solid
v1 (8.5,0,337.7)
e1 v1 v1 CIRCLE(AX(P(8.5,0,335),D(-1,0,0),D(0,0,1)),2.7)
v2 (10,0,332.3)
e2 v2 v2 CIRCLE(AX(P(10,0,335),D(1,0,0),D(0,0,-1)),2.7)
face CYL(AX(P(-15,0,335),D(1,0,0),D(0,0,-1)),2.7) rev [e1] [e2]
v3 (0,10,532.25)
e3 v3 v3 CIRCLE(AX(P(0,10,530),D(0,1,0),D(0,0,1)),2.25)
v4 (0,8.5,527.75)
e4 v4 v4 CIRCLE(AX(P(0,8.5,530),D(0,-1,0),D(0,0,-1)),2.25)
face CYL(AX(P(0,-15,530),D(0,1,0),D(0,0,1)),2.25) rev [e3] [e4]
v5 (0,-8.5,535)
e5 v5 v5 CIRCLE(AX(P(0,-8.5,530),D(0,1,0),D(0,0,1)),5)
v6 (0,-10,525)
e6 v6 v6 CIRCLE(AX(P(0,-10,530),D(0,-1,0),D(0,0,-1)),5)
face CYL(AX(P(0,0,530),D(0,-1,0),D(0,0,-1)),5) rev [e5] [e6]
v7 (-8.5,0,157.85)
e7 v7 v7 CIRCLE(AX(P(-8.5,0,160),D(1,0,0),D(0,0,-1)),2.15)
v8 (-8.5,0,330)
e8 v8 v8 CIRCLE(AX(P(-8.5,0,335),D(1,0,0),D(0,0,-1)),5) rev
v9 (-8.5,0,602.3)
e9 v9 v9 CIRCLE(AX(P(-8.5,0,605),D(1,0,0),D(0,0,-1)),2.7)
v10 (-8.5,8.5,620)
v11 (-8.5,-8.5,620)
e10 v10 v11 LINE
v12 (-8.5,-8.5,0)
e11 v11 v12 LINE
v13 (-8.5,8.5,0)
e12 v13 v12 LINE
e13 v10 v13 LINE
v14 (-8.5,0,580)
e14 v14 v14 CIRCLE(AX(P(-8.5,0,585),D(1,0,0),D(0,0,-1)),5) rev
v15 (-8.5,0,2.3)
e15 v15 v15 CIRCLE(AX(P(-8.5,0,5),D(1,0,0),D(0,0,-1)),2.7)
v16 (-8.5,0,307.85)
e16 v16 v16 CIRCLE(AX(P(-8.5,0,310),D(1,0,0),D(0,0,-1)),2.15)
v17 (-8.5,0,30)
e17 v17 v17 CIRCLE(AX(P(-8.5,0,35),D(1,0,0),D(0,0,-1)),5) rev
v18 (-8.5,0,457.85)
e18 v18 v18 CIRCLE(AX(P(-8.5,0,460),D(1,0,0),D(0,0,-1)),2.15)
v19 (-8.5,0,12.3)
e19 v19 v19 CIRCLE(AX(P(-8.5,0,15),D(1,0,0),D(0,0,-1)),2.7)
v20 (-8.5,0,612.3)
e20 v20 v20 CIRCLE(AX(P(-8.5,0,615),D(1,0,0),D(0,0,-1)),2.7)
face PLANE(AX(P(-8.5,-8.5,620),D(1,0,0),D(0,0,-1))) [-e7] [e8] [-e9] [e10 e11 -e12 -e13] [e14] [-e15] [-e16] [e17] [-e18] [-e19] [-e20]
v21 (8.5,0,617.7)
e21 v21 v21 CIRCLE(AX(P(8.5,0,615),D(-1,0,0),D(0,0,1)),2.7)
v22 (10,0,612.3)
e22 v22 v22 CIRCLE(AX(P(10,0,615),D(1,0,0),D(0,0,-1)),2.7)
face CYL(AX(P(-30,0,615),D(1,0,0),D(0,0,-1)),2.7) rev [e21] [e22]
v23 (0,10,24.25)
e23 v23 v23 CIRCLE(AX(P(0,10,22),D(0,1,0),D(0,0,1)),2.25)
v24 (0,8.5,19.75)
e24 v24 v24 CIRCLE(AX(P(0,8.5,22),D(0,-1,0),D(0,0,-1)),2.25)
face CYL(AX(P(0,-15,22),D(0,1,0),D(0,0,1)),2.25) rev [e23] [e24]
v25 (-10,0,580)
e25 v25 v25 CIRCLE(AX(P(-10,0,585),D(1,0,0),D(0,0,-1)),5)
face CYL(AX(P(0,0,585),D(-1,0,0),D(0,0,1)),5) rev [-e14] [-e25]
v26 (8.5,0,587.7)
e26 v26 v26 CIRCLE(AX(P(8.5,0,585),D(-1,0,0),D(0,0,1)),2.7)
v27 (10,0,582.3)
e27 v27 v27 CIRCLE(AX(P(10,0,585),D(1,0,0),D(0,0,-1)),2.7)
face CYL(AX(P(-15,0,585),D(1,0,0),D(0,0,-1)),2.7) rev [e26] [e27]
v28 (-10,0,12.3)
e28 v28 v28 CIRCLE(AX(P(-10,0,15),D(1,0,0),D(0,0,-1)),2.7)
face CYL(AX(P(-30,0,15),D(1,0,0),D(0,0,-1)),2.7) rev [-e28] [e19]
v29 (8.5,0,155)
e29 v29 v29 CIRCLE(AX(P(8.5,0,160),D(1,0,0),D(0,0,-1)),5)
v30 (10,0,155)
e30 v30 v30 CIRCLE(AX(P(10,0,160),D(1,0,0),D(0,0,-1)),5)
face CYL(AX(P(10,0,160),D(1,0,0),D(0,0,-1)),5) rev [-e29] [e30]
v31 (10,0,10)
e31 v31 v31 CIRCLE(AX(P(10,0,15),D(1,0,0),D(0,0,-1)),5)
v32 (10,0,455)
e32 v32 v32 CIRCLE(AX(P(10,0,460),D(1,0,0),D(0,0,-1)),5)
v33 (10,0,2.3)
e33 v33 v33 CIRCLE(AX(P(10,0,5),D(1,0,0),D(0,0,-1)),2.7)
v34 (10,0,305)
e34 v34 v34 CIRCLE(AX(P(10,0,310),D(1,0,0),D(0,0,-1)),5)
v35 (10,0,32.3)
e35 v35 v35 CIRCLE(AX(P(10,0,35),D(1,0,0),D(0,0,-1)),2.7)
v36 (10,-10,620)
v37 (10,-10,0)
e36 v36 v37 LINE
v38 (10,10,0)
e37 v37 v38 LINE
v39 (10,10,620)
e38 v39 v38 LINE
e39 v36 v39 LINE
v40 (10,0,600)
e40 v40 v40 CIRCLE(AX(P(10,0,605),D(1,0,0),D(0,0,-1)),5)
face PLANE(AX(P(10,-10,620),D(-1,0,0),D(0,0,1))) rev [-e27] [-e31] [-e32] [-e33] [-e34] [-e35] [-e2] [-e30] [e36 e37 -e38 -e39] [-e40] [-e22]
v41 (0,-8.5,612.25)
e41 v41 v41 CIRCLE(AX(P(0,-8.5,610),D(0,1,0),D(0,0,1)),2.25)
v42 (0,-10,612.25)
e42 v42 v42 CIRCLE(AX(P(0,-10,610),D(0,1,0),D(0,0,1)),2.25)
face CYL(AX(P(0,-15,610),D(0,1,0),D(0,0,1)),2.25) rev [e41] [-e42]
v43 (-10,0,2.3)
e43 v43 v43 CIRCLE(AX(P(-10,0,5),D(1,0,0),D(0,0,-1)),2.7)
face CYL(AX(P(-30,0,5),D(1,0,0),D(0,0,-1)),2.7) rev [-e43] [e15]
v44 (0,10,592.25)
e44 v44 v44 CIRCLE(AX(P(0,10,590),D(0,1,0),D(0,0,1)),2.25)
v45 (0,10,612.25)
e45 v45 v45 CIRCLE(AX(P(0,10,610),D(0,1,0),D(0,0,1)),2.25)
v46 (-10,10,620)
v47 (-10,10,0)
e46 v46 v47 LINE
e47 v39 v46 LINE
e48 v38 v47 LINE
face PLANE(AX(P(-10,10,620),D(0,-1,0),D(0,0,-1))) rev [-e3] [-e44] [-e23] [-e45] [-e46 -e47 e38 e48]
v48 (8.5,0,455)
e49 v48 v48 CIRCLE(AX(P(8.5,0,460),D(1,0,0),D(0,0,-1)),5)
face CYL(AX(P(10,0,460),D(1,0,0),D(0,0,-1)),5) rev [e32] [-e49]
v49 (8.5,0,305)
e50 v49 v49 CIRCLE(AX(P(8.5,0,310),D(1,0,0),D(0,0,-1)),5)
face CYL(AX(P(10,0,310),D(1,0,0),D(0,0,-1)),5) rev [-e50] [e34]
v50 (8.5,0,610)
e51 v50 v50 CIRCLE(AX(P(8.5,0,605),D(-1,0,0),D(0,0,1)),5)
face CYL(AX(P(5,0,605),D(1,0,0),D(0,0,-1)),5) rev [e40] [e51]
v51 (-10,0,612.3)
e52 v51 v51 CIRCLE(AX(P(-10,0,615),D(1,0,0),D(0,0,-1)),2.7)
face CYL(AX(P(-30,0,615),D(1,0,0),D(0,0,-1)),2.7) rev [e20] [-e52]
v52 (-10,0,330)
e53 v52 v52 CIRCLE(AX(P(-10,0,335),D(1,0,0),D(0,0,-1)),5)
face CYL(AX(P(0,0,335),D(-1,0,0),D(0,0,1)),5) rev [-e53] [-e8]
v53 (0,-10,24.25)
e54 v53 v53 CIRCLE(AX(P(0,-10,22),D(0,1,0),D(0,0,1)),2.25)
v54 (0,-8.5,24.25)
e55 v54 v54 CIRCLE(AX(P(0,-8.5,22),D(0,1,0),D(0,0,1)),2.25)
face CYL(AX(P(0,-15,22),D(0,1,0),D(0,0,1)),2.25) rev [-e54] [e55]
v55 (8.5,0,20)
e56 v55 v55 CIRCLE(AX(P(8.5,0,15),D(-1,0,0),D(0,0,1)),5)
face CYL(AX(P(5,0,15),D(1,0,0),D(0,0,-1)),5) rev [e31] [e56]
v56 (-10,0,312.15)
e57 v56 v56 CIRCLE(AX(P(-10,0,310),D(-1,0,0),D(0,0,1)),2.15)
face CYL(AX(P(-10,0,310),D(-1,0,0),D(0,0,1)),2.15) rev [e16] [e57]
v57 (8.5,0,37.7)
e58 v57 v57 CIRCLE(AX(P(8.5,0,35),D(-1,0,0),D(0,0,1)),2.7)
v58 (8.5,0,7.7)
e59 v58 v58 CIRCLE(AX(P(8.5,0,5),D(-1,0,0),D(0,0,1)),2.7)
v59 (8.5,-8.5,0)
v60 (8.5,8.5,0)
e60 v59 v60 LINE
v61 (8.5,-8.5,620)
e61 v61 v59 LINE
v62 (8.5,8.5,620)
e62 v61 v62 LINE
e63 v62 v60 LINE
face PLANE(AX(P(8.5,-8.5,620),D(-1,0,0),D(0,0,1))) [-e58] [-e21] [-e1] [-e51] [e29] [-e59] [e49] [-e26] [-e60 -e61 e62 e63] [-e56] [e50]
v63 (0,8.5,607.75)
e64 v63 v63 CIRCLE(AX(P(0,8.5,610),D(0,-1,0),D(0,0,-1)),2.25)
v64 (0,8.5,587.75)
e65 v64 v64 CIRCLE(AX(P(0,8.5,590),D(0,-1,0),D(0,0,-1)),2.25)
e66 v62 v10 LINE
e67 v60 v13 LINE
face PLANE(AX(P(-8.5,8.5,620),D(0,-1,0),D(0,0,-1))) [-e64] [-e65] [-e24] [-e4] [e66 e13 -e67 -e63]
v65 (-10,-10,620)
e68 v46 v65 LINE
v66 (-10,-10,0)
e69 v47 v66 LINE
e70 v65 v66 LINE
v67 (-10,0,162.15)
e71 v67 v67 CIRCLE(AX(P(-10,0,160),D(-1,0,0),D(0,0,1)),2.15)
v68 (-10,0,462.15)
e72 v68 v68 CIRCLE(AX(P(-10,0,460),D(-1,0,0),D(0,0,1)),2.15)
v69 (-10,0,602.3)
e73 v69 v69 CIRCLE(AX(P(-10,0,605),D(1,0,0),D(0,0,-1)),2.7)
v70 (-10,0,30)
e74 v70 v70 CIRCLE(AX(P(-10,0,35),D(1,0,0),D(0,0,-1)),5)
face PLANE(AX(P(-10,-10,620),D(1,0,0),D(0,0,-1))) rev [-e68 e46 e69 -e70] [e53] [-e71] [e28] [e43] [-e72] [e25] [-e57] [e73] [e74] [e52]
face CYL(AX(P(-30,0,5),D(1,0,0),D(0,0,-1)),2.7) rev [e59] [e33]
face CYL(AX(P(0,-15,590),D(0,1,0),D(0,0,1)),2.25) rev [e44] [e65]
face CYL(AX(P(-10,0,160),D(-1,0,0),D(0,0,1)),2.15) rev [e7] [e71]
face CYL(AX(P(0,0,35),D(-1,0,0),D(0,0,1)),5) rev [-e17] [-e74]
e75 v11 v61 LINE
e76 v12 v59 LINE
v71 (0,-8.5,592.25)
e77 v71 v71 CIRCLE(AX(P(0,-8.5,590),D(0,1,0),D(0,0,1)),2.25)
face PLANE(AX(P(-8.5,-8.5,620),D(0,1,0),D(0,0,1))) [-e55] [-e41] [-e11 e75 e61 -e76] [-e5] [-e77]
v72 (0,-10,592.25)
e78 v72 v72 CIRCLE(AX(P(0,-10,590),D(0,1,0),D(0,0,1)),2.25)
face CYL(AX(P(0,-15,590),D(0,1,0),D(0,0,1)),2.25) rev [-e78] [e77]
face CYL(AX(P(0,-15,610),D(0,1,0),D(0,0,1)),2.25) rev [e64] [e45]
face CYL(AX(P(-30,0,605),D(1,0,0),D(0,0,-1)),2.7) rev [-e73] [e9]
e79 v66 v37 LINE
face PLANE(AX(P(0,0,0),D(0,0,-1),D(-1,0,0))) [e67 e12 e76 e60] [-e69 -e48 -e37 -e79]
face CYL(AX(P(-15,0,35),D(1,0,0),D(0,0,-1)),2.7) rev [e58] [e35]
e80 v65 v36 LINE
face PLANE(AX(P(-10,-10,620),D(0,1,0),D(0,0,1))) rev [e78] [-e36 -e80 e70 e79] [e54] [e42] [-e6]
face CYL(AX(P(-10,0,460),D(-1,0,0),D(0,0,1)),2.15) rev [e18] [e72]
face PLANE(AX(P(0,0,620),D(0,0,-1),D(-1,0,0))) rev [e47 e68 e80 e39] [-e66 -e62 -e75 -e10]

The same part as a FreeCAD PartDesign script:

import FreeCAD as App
import Part
import Sketcher

V = App.Vector
Q = App.Units.Quantity


def add_polygon(sketch, points):
    """Adds a closed chain of lines whose ends are joined by coincident constraints."""
    first, n = sketch.GeometryCount, len(points)
    for a, b in zip(points, points[1:] + points[:1]):
        sketch.addGeometry(Part.LineSegment(App.Vector(*a, 0), App.Vector(*b, 0)), False)
    for i in range(n):
        sketch.addConstraint(Sketcher.Constraint("Coincident", first + i, 2, first + (i + 1) % n, 1))

doc = App.newDocument("Part")
body = doc.addObject("PartDesign::Body", "Body")

# Sketch on XY plane
sketch1 = body.newObject("Sketcher::SketchObject", "Sketch")
sketch1.AttachmentSupport = (doc.getObject("XY_Plane"), [""])
sketch1.MapMode = "FlatFace"
add_polygon(sketch1, [(-10, 10), (-10, -10), (10, -10), (10, 10)])  # lines 0-3
add_polygon(sketch1, [(8.5, -8.5), (-8.5, -8.5), (-8.5, 8.5), (8.5, 8.5)])  # lines 4-7
sketch1.addConstraint(Sketcher.Constraint("Vertical", 0))
sketch1.addConstraint(Sketcher.Constraint("Horizontal", 1))
sketch1.addConstraint(Sketcher.Constraint("Vertical", 2))
sketch1.addConstraint(Sketcher.Constraint("Horizontal", 3))
sketch1.addConstraint(Sketcher.Constraint("Horizontal", 4))
sketch1.addConstraint(Sketcher.Constraint("Vertical", 5))
sketch1.addConstraint(Sketcher.Constraint("Horizontal", 6))
sketch1.addConstraint(Sketcher.Constraint("Vertical", 7))
sketch1.addConstraint(Sketcher.Constraint("Symmetric", 0, 2, 2, 2, -1, 1))
sketch1.addConstraint(Sketcher.Constraint("Symmetric", 4, 2, 6, 2, -1, 1))
sketch1.addConstraint(Sketcher.Constraint("Equal", 3, 0))
sketch1.addConstraint(Sketcher.Constraint("Equal", 6, 5))
sketch1.addConstraint(Sketcher.Constraint("DistanceX", 1, 1, 1, 2, Q("20 mm")))
sketch1.addConstraint(Sketcher.Constraint("DistanceX", 4, 2, 4, 1, Q("17 mm")))
pad1 = body.newObject("PartDesign::Pad", "Pad")
pad1.Profile = sketch1
pad1.Length = 620

# Sketch on YZ plane
sketch2 = body.newObject("Sketcher::SketchObject", "Sketch001")
sketch2.AttachmentSupport = (doc.getObject("YZ_Plane"), [""])
sketch2.MapMode = "FlatFace"
sketch2.AttachmentOffset = App.Placement(V(0, 0, 10), App.Rotation())
sketch2.addGeometry(Part.Circle(V(0, 585, 0), V(0, 0, 1), 2.7), False)
sketch2.addGeometry(Part.Circle(V(0, 35, 0), V(0, 0, 1), 2.7), False)
sketch2.addGeometry(Part.Circle(V(0, 335, 0), V(0, 0, 1), 2.7), False)
sketch2.addConstraint(Sketcher.Constraint("Equal", 0, 1))
sketch2.addConstraint(Sketcher.Constraint("Equal", 1, 2))
sketch2.addConstraint(Sketcher.Constraint("PointOnObject", 0, 3, -2))
sketch2.addConstraint(Sketcher.Constraint("PointOnObject", 1, 3, -2))
sketch2.addConstraint(Sketcher.Constraint("PointOnObject", 2, 3, -2))
sketch2.addConstraint(Sketcher.Constraint("Diameter", 0, Q("5.4 mm")))
sketch2.addConstraint(Sketcher.Constraint("DistanceY", -1, 1, 0, 3, Q("585 mm")))
sketch2.addConstraint(Sketcher.Constraint("DistanceY", -1, 1, 1, 3, Q("35 mm")))
sketch2.addConstraint(Sketcher.Constraint("DistanceY", -1, 1, 2, 3, Q("335 mm")))
pocket1 = body.newObject("PartDesign::Pocket", "Pocket")
pocket1.Profile = sketch2
pocket1.Length = 25

# Sketch on XZ plane
sketch3 = body.newObject("Sketcher::SketchObject", "Sketch002")
sketch3.AttachmentSupport = (doc.getObject("XZ_Plane"), [""])
sketch3.MapMode = "FlatFace"
sketch3.AttachmentOffset = App.Placement(V(0, 0, -10), App.Rotation())
sketch3.addGeometry(Part.Circle(V(0, 22, 0), V(0, 0, 1), 2.25), False)
sketch3.addGeometry(Part.Circle(V(0, 610, 0), V(0, 0, 1), 2.25), False)
sketch3.addGeometry(Part.Circle(V(0, 530, 0), V(0, 0, 1), 2.25), False)
sketch3.addGeometry(Part.Circle(V(0, 590, 0), V(0, 0, 1), 2.25), False)
sketch3.addConstraint(Sketcher.Constraint("Equal", 0, 1))
sketch3.addConstraint(Sketcher.Constraint("Equal", 1, 2))
sketch3.addConstraint(Sketcher.Constraint("Equal", 2, 3))
sketch3.addConstraint(Sketcher.Constraint("PointOnObject", 0, 3, -2))
sketch3.addConstraint(Sketcher.Constraint("PointOnObject", 1, 3, -2))
sketch3.addConstraint(Sketcher.Constraint("PointOnObject", 2, 3, -2))
sketch3.addConstraint(Sketcher.Constraint("PointOnObject", 3, 3, -2))
sketch3.addConstraint(Sketcher.Constraint("Diameter", 0, Q("4.5 mm")))
sketch3.addConstraint(Sketcher.Constraint("DistanceY", -1, 1, 0, 3, Q("22 mm")))
sketch3.addConstraint(Sketcher.Constraint("DistanceY", -1, 1, 1, 3, Q("610 mm")))
sketch3.addConstraint(Sketcher.Constraint("DistanceY", -1, 1, 2, 3, Q("530 mm")))
sketch3.addConstraint(Sketcher.Constraint("DistanceY", -1, 1, 3, 3, Q("590 mm")))
pocket2 = body.newObject("PartDesign::Pocket", "Pocket001")
pocket2.Profile = sketch3
pocket2.Length = 25
pocket2.Reversed = True

# Sketch on YZ plane
sketch4 = body.newObject("Sketcher::SketchObject", "Sketch003")
sketch4.AttachmentSupport = (doc.getObject("YZ_Plane"), [""])
sketch4.MapMode = "FlatFace"
sketch4.AttachmentOffset = App.Placement(V(0, 0, 10), App.Rotation())
sketch4.addGeometry(Part.Circle(V(0, 15, 0), V(0, 0, 1), 2.7), False)
sketch4.addGeometry(Part.Circle(V(0, 5, 0), V(0, 0, 1), 2.7), False)
sketch4.addGeometry(Part.Circle(V(0, 615, 0), V(0, 0, 1), 2.7), False)
sketch4.addGeometry(Part.Circle(V(0, 605, 0), V(0, 0, 1), 2.7), False)
sketch4.addConstraint(Sketcher.Constraint("Equal", 0, 1))
sketch4.addConstraint(Sketcher.Constraint("Equal", 1, 2))
sketch4.addConstraint(Sketcher.Constraint("Equal", 2, 3))
sketch4.addConstraint(Sketcher.Constraint("PointOnObject", 0, 3, -2))
sketch4.addConstraint(Sketcher.Constraint("PointOnObject", 1, 3, -2))
sketch4.addConstraint(Sketcher.Constraint("PointOnObject", 2, 3, -2))
sketch4.addConstraint(Sketcher.Constraint("PointOnObject", 3, 3, -2))
sketch4.addConstraint(Sketcher.Constraint("Diameter", 0, Q("5.4 mm")))
sketch4.addConstraint(Sketcher.Constraint("DistanceY", -1, 1, 0, 3, Q("15 mm")))
sketch4.addConstraint(Sketcher.Constraint("DistanceY", -1, 1, 1, 3, Q("5 mm")))
sketch4.addConstraint(Sketcher.Constraint("DistanceY", -1, 1, 2, 3, Q("615 mm")))
sketch4.addConstraint(Sketcher.Constraint("DistanceY", -1, 1, 3, 3, Q("605 mm")))
pocket3 = body.newObject("PartDesign::Pocket", "Pocket002")
pocket3.Profile = sketch4
pocket3.Length = 40

# Sketch on XZ plane
sketch5 = body.newObject("Sketcher::SketchObject", "Sketch004")
sketch5.AttachmentSupport = (doc.getObject("XZ_Plane"), [""])
sketch5.MapMode = "FlatFace"
sketch5.AttachmentOffset = App.Placement(V(0, 0, 10), App.Rotation())
sketch5.addGeometry(Part.Circle(V(0, 530, 0), V(0, 0, 1), 5), False)
sketch5.addConstraint(Sketcher.Constraint("PointOnObject", 0, 3, -2))
sketch5.addConstraint(Sketcher.Constraint("Diameter", 0, Q("10 mm")))
sketch5.addConstraint(Sketcher.Constraint("DistanceY", -1, 1, 0, 3, Q("530 mm")))
pocket4 = body.newObject("PartDesign::Pocket", "Pocket003")
pocket4.Profile = sketch5
pocket4.Length = 10

# Sketch on YZ plane
sketch6 = body.newObject("Sketcher::SketchObject", "Sketch005")
sketch6.AttachmentSupport = (doc.getObject("YZ_Plane"), [""])
sketch6.MapMode = "FlatFace"
sketch6.AttachmentOffset = App.Placement(V(0, 0, -10), App.Rotation())
sketch6.addGeometry(Part.Circle(V(0, 585, 0), V(0, 0, 1), 5), False)
sketch6.addGeometry(Part.Circle(V(0, 335, 0), V(0, 0, 1), 5), False)
sketch6.addGeometry(Part.Circle(V(0, 35, 0), V(0, 0, 1), 5), False)
sketch6.addConstraint(Sketcher.Constraint("Equal", 0, 1))
sketch6.addConstraint(Sketcher.Constraint("Equal", 1, 2))
sketch6.addConstraint(Sketcher.Constraint("PointOnObject", 0, 3, -2))
sketch6.addConstraint(Sketcher.Constraint("PointOnObject", 1, 3, -2))
sketch6.addConstraint(Sketcher.Constraint("PointOnObject", 2, 3, -2))
sketch6.addConstraint(Sketcher.Constraint("Diameter", 0, Q("10 mm")))
sketch6.addConstraint(Sketcher.Constraint("DistanceY", -1, 1, 0, 3, Q("585 mm")))
sketch6.addConstraint(Sketcher.Constraint("DistanceY", -1, 1, 1, 3, Q("335 mm")))
sketch6.addConstraint(Sketcher.Constraint("DistanceY", -1, 1, 2, 3, Q("35 mm")))
pocket5 = body.newObject("PartDesign::Pocket", "Pocket004")
pocket5.Profile = sketch6
pocket5.Length = 10
pocket5.Reversed = True

# Sketch on YZ plane
sketch7 = body.newObject("Sketcher::SketchObject", "Sketch006")
sketch7.AttachmentSupport = (doc.getObject("YZ_Plane"), [""])
sketch7.MapMode = "FlatFace"
sketch7.AttachmentOffset = App.Placement(V(0, 0, 10), App.Rotation())
sketch7.addGeometry(Part.Circle(V(0, 605, 0), V(0, 0, 1), 5), False)
sketch7.addGeometry(Part.Circle(V(0, 15, 0), V(0, 0, 1), 5), False)
sketch7.addConstraint(Sketcher.Constraint("Equal", 0, 1))
sketch7.addConstraint(Sketcher.Constraint("PointOnObject", 0, 3, -2))
sketch7.addConstraint(Sketcher.Constraint("PointOnObject", 1, 3, -2))
sketch7.addConstraint(Sketcher.Constraint("Diameter", 0, Q("10 mm")))
sketch7.addConstraint(Sketcher.Constraint("DistanceY", -1, 1, 0, 3, Q("605 mm")))
sketch7.addConstraint(Sketcher.Constraint("DistanceY", -1, 1, 1, 3, Q("15 mm")))
pocket6 = body.newObject("PartDesign::Pocket", "Pocket005")
pocket6.Profile = sketch7
pocket6.Length = 5

# Sketch on YZ plane
sketch8 = body.newObject("Sketcher::SketchObject", "Sketch007")
sketch8.AttachmentSupport = (doc.getObject("YZ_Plane"), [""])
sketch8.MapMode = "FlatFace"
sketch8.AttachmentOffset = App.Placement(V(0, 0, -10), App.Rotation())
sketch8.addGeometry(Part.Circle(V(0, 460, 0), V(0, 0, 1), 2.15), False)
sketch8.addGeometry(Part.Circle(V(0, 310, 0), V(0, 0, 1), 2.15), False)
sketch8.addGeometry(Part.Circle(V(0, 160, 0), V(0, 0, 1), 2.15), False)
sketch8.addConstraint(Sketcher.Constraint("Equal", 0, 1))
sketch8.addConstraint(Sketcher.Constraint("Equal", 1, 2))
sketch8.addConstraint(Sketcher.Constraint("PointOnObject", 0, 3, -2))
sketch8.addConstraint(Sketcher.Constraint("PointOnObject", 1, 3, -2))
sketch8.addConstraint(Sketcher.Constraint("PointOnObject", 2, 3, -2))
sketch8.addConstraint(Sketcher.Constraint("Diameter", 0, Q("4.3 mm")))
sketch8.addConstraint(Sketcher.Constraint("DistanceY", -1, 1, 0, 3, Q("460 mm")))
sketch8.addConstraint(Sketcher.Constraint("DistanceY", -1, 1, 1, 3, Q("310 mm")))
sketch8.addConstraint(Sketcher.Constraint("DistanceY", -1, 1, 2, 3, Q("160 mm")))
doc.recompute()
hole = body.newObject("PartDesign::Hole", "Hole")
hole.Profile = sketch8
hole.ThreadType = "None"
hole.Diameter = 4.3
hole.DepthType = "ThroughAll"
hole.Reversed = True

# Sketch on YZ plane
sketch9 = body.newObject("Sketcher::SketchObject", "Sketch008")
sketch9.AttachmentSupport = (doc.getObject("YZ_Plane"), [""])
sketch9.MapMode = "FlatFace"
sketch9.AttachmentOffset = App.Placement(V(0, 0, 10), App.Rotation())
sketch9.addGeometry(Part.Circle(V(0, 460, 0), V(0, 0, 1), 5), False)
sketch9.addGeometry(Part.Circle(V(0, 310, 0), V(0, 0, 1), 5), False)
sketch9.addGeometry(Part.Circle(V(0, 160, 0), V(0, 0, 1), 5), False)
sketch9.addConstraint(Sketcher.Constraint("Equal", 0, 1))
sketch9.addConstraint(Sketcher.Constraint("Equal", 1, 2))
sketch9.addConstraint(Sketcher.Constraint("PointOnObject", 0, 3, -2))
sketch9.addConstraint(Sketcher.Constraint("PointOnObject", 1, 3, -2))
sketch9.addConstraint(Sketcher.Constraint("PointOnObject", 2, 3, -2))
sketch9.addConstraint(Sketcher.Constraint("Diameter", 0, Q("10 mm")))
sketch9.addConstraint(Sketcher.Constraint("DistanceY", -1, 1, 0, 3, Q("460 mm")))
sketch9.addConstraint(Sketcher.Constraint("DistanceY", -1, 1, 1, 3, Q("310 mm")))
sketch9.addConstraint(Sketcher.Constraint("DistanceY", -1, 1, 2, 3, Q("160 mm")))
doc.recompute()
hole2 = body.newObject("PartDesign::Hole", "Hole001")
hole2.Profile = sketch9
hole2.ThreadType = "None"
hole2.Diameter = 10
hole2.DepthType = "Dimension"
hole2.Depth = 1.5
hole2.DrillPoint = "Flat"

doc.recompute()
